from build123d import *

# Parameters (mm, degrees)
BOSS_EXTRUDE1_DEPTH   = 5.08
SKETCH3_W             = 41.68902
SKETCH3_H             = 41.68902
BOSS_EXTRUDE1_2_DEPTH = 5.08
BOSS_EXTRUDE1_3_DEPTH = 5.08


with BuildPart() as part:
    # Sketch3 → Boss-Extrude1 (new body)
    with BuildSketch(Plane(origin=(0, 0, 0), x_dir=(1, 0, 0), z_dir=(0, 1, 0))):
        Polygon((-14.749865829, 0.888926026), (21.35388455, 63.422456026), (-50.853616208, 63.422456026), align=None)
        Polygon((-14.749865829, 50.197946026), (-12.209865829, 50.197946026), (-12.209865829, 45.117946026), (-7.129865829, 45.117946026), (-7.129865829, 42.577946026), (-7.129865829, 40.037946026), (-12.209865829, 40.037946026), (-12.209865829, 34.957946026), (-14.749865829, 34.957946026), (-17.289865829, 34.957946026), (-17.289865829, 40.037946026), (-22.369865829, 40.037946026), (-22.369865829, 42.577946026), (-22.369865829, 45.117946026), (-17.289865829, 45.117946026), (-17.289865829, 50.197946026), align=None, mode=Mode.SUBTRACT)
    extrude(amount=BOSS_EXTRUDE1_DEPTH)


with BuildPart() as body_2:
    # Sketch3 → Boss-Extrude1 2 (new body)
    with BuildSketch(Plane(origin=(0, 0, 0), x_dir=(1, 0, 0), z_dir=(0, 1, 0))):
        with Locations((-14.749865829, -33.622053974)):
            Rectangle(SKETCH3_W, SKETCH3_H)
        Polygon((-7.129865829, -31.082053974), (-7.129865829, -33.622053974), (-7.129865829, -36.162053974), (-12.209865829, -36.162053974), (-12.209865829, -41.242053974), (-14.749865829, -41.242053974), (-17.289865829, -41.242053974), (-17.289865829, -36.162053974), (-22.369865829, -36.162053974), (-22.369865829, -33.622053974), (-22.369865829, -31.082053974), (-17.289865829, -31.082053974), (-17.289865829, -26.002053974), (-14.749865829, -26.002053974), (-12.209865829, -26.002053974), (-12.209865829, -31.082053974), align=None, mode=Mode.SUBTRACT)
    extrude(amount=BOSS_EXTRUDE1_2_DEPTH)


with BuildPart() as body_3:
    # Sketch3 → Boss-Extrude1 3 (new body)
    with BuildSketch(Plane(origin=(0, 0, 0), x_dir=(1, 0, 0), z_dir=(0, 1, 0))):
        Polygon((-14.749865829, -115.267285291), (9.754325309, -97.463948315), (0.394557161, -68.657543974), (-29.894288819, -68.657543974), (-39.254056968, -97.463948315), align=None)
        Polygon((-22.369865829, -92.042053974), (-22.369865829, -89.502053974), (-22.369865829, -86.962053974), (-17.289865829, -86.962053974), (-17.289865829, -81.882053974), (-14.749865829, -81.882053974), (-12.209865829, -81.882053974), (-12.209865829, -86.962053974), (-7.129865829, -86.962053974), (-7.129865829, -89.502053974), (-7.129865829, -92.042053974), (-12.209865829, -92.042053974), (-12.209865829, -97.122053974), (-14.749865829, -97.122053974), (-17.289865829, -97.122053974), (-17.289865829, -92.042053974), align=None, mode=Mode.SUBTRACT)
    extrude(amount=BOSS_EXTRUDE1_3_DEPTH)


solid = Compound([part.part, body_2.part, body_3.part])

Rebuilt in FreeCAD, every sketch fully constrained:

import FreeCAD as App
import Part
import Sketcher
from FreeCAD import Vector
Q = App.Units.Quantity


def add_polygon(sketch, points):
    """Adds a closed chain of lines whose ends are joined by coincident constraints."""
    first, n = sketch.GeometryCount, len(points)
    for a, b in zip(points, points[1:] + points[:1]):
        sketch.addGeometry(Part.LineSegment(App.Vector(*a, 0), App.Vector(*b, 0)), False)
    for i in range(n):
        sketch.addConstraint(Sketcher.Constraint("Coincident", first + i, 2, first + (i + 1) % n, 1))

doc = App.newDocument("Part")
body = doc.addObject("PartDesign::Body", "Body")

sketch1 = body.newObject("Sketcher::SketchObject", "Sketch")
sketch1.AttachmentSupport = (doc.getObject("XZ_Plane"), [""])
sketch1.MapMode = "FlatFace"
add_polygon(sketch1, [(-15, -1), (21, -63), (-51, -63)])
add_polygon(sketch1, [(-17, -50), (-12, -50), (-12, -45), (-7, -45), (-7, -40), (-12, -40), (-12, -35), (-17, -35), (-17, -40), (-22, -40), (-22, -45), (-17, -45)])
sketch1.addConstraint([
    Sketcher.Constraint("Horizontal", 1),
    Sketcher.Constraint("Horizontal", 3),
    Sketcher.Constraint("Vertical", 4),
    Sketcher.Constraint("Horizontal", 5),
    Sketcher.Constraint("Vertical", 6),
    Sketcher.Constraint("Horizontal", 7),
    Sketcher.Constraint("Vertical", 8),
    Sketcher.Constraint("Horizontal", 9),
    Sketcher.Constraint("Vertical", 10),
    Sketcher.Constraint("Horizontal", 11),
    Sketcher.Constraint("Vertical", 12),
    Sketcher.Constraint("Horizontal", 13),
    Sketcher.Constraint("Vertical", 14),
    Sketcher.Constraint("Horizontal", 7, 2, 10, 2),
    Sketcher.Constraint("Horizontal", 5, 2, 12, 2),
    Sketcher.Constraint("Vertical", 4, 2, 7, 2),
    Sketcher.Constraint("Vertical", 10, 2, 13, 2),
    Sketcher.Constraint("Equal", 3, 5),
    Sketcher.Constraint("Equal", 9, 11),
    Sketcher.Constraint("Equal", 13, 4),
    Sketcher.Constraint("Equal", 4, 6),
    Sketcher.Constraint("Equal", 6, 8),
    Sketcher.Constraint("Equal", 0, 2),
    Sketcher.Constraint("DistanceX", 3, 1, 3, 2, Q("0.2 in")),
    Sketcher.Constraint("Angle", 0, Q("-60 deg")),
    Sketcher.Constraint("DistanceX", 2, 2, 3, 2, Q("0.1 in")),
    Sketcher.Constraint("DistanceX", 1, 2, 1, 1, 72.207501),
    Sketcher.Constraint("DistanceY", 3, 2, 2, 2, Q("1.9413 in")),
    Sketcher.Constraint("DistanceX", -1, 1, 0, 2, 21.353885),
    Sketcher.Constraint("DistanceY", 0, 2, -1, 1, 63.422456),
])
pad1 = body.newObject("PartDesign::Pad", "Pad")
pad1.Profile = sketch1
pad1.Length = Q("0.2 in")
pad1.Reversed = True
body2 = doc.addObject("PartDesign::Body", "Body001")

sketch2 = body2.newObject("Sketcher::SketchObject", "Sketch001")
sketch2.AttachmentSupport = (doc.getObject("XZ_Plane001"), [""])
sketch2.MapMode = "FlatFace"
add_polygon(sketch2, [(-36, 13), (-36, 54), (6, 54), (6, 13)])
add_polygon(sketch2, [(-12, 31), (-7, 31), (-7, 36), (-12, 36), (-12, 41), (-17, 41), (-17, 36), (-22, 36), (-22, 31), (-17, 31), (-17, 26), (-12, 26)])
sketch2.addConstraint([
    Sketcher.Constraint("Vertical", 0),
    Sketcher.Constraint("Horizontal", 1),
    Sketcher.Constraint("Vertical", 2),
    Sketcher.Constraint("Horizontal", 3),
    Sketcher.Constraint("Horizontal", 4),
    Sketcher.Constraint("Vertical", 5),
    Sketcher.Constraint("Horizontal", 6),
    Sketcher.Constraint("Vertical", 7),
    Sketcher.Constraint("Horizontal", 8),
    Sketcher.Constraint("Vertical", 9),
    Sketcher.Constraint("Horizontal", 10),
    Sketcher.Constraint("Vertical", 11),
    Sketcher.Constraint("Horizontal", 12),
    Sketcher.Constraint("Vertical", 13),
    Sketcher.Constraint("Horizontal", 14),
    Sketcher.Constraint("Vertical", 15),
    Sketcher.Constraint("Horizontal", 6, 2, 9, 2),
    Sketcher.Constraint("Horizontal", 4, 2, 11, 2),
    Sketcher.Constraint("Vertical", 9, 2, 12, 2),
    Sketcher.Constraint("Vertical", 7, 2, 14, 2),
    Sketcher.Constraint("Equal", 6, 8),
    Sketcher.Constraint("Equal", 8, 10),
    Sketcher.Constraint("Equal", 3, 0),
    Sketcher.Constraint("Equal", 14, 5),
    Sketcher.Constraint("Equal", 5, 7),
    Sketcher.Constraint("Equal", 11, 13),
    Sketcher.Constraint("DistanceX", 4, 1, 4, 2, Q("0.2 in")),
    Sketcher.Constraint("DistanceX", 1, 1, 1, 2, Q("1.6413 in")),
    Sketcher.Constraint("DistanceX", 4, 2, 2, 2, 13.22451),
    Sketcher.Constraint("DistanceY", 2, 2, 4, 2, 18.30451),
    Sketcher.Constraint("DistanceX", 0, 2, -1, 1, 35.594376),
    Sketcher.Constraint("DistanceY", -1, 1, 0, 2, 54.466564),
])
pad2 = body2.newObject("PartDesign::Pad", "Pad001")
pad2.Profile = sketch2
pad2.Length = Q("0.2 in")
pad2.Reversed = True
body3 = doc.addObject("PartDesign::Body", "Body002")

sketch3 = body3.newObject("Sketcher::SketchObject", "Sketch002")
sketch3.AttachmentSupport = (doc.getObject("XZ_Plane002"), [""])
sketch3.MapMode = "FlatFace"
add_polygon(sketch3, [(-15, 115), (10, 97), (0, 69), (-30, 69), (-39, 97)])
add_polygon(sketch3, [(-17, 92), (-22, 92), (-22, 87), (-17, 87), (-17, 82), (-12, 82), (-12, 87), (-7, 87), (-7, 92), (-12, 92), (-12, 97), (-17, 97)])
sketch3.addConstraint([
    Sketcher.Constraint("Horizontal", 2),
    Sketcher.Constraint("Horizontal", 5),
    Sketcher.Constraint("Vertical", 6),
    Sketcher.Constraint("Horizontal", 7),
    Sketcher.Constraint("Vertical", 8),
    Sketcher.Constraint("Horizontal", 9),
    Sketcher.Constraint("Vertical", 10),
    Sketcher.Constraint("Horizontal", 11),
    Sketcher.Constraint("Vertical", 12),
    Sketcher.Constraint("Horizontal", 13),
    Sketcher.Constraint("Vertical", 14),
    Sketcher.Constraint("Horizontal", 15),
    Sketcher.Constraint("Vertical", 16),
    Sketcher.Constraint("Horizontal", 0, 2, 3, 2),
    Sketcher.Constraint("Horizontal", 7, 2, 10, 2),
    Sketcher.Constraint("Horizontal", 5, 2, 12, 2),
    Sketcher.Constraint("Vertical", 10, 2, 13, 2),
    Sketcher.Constraint("Vertical", 8, 2, 15, 2),
    Sketcher.Constraint("Equal", 7, 9),
    Sketcher.Constraint("Equal", 9, 11),
    Sketcher.Constraint("Equal", 15, 6),
    Sketcher.Constraint("Equal", 6, 8),
    Sketcher.Constraint("Equal", 12, 14),
    Sketcher.Constraint("Equal", 0, 1),
    Sketcher.Constraint("Equal", 1, 3),
    Sketcher.Constraint("Equal", 3, 4),
    Sketcher.Constraint("DistanceX", 5, 2, 5, 1, Q("0.2 in")),
    Sketcher.Constraint("Angle", 0, Q("-36 deg")),
    Sketcher.Constraint("Angle", 1, Q("-108 deg")),
    Sketcher.Constraint("DistanceX", 5, 2, 4, 2, Q("0.3 in")),
    Sketcher.Constraint("DistanceX", 2, 2, 2, 1, 30.288846),
    Sketcher.Constraint("DistanceY", -1, 1, 0, 2, 97.463948),
    Sketcher.Constraint("DistanceX", 2, 2, -1, 1, 29.894289),
    Sketcher.Constraint("DistanceY", 5, 2, 4, 2, 23.225231),
])
pad3 = body3.newObject("PartDesign::Pad", "Pad002")
pad3.Profile = sketch3
pad3.Length = Q("0.2 in")
pad3.Reversed = True

doc.recompute()
